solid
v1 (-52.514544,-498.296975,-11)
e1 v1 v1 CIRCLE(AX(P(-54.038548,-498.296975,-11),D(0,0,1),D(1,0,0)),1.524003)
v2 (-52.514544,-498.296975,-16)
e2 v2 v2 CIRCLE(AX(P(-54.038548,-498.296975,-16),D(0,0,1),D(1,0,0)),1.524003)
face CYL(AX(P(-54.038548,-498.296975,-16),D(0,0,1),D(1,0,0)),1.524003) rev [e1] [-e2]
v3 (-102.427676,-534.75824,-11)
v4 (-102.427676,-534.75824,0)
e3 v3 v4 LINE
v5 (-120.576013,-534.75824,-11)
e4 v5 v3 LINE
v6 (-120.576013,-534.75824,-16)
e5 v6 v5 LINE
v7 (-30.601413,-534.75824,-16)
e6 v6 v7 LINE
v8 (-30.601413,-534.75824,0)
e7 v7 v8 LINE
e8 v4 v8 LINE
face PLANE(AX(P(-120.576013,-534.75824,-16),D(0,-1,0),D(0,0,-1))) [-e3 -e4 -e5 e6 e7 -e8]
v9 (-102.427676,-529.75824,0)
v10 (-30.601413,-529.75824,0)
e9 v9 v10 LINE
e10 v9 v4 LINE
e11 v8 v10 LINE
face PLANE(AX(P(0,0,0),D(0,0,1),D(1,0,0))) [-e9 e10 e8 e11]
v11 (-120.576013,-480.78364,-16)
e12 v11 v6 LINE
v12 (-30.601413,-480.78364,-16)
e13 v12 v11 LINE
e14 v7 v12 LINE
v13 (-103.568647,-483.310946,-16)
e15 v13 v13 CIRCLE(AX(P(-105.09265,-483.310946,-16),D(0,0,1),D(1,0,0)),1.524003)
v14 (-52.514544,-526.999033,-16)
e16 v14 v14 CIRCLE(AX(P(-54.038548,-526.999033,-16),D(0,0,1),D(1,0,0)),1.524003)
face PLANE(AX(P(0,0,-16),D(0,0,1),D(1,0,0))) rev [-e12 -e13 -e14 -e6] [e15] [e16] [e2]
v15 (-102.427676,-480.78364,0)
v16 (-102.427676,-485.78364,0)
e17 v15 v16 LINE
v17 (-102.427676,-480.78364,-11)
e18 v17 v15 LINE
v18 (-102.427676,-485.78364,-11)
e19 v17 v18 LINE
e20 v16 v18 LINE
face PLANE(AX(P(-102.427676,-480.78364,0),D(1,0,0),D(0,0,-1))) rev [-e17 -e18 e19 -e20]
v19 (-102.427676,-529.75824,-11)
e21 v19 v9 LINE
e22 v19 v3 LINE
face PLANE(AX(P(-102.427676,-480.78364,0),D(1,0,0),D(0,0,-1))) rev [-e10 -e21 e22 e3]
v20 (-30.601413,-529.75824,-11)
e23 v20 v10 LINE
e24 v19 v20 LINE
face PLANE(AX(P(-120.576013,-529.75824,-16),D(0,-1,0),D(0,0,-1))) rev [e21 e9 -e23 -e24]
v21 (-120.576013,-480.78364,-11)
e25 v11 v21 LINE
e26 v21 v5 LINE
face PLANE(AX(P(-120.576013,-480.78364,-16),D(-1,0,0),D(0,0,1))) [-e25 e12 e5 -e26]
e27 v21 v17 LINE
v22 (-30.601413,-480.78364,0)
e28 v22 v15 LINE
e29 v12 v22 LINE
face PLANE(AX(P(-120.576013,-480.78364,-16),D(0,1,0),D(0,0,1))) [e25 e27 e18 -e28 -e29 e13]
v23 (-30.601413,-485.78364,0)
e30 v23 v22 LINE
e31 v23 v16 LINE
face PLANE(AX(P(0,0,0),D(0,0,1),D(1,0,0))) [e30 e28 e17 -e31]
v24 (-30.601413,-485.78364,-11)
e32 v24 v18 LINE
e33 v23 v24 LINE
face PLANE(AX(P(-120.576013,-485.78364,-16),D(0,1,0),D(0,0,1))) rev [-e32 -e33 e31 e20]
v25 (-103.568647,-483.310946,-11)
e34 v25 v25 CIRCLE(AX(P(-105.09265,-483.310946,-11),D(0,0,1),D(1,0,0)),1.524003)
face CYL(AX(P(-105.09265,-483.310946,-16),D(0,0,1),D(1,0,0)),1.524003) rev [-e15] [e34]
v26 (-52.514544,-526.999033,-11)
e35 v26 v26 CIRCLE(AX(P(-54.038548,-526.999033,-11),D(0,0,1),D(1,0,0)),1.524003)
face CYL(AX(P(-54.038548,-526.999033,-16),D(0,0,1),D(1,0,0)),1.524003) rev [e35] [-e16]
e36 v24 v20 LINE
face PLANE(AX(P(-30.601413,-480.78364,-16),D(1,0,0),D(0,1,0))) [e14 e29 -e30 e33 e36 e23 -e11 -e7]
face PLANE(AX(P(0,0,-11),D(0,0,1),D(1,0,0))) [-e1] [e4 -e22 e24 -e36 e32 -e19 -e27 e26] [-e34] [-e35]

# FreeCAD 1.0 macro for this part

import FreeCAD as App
import Part
import Sketcher
from FreeCAD import Vector
Q = App.Units.Quantity


def faces_at(feature, points):
    """Names of the faces that lie closest to the given points."""
    faces = feature.Shape.Faces
    near = lambda p: min(range(len(faces)), key=lambda i: faces[i].distToShape(Part.Vertex(*p))[0])
    return sorted({f"Face{near(p) + 1}" for p in points})

doc = App.newDocument("Part")
params = doc.addObject("Spreadsheet::Sheet", "Params")
for row, (alias, value) in enumerate([
    ("pad1_length", "16 mm"),
    ("thickness_wall", "5 mm"),
    ("sketch2_height", "11 mm"),
    ("sketch3_height", "11 mm"),
], start=1):
    params.set(f"A{row}", alias)
    params.set(f"B{row}", "=" + value)
    params.setAlias(f"B{row}", alias)

body = doc.addObject("PartDesign::Body", "Body")

# Sketch on XY plane
sketch1 = doc.addObject("Sketcher::SketchObject", "Sketch")
body.addObject(sketch1)
sketch1.AttachmentSupport = (doc.XY_Plane, [""])
sketch1.MapMode = "FlatFace"
sketch1.addGeometry([
    Part.LineSegment(Vector(-121, -481, 0), Vector(-121, -535, 0)),
    Part.LineSegment(Vector(-121, -535, 0), Vector(-31, -535, 0)),
    Part.LineSegment(Vector(-31, -535, 0), Vector(-31, -481, 0)),
    Part.LineSegment(Vector(-31, -481, 0), Vector(-121, -481, 0)),
], False)
sketch1.addConstraint([
    Sketcher.Constraint("Coincident", 0, 2, 1, 1),
    Sketcher.Constraint("Coincident", 1, 2, 2, 1),
    Sketcher.Constraint("Coincident", 2, 2, 3, 1),
    Sketcher.Constraint("Coincident", 3, 2, 0, 1),
    Sketcher.Constraint("Vertical", 0),
    Sketcher.Constraint("Horizontal", 1),
    Sketcher.Constraint("Vertical", 2),
    Sketcher.Constraint("Horizontal", 3),
    Sketcher.Constraint("DistanceX", 1, 1, 1, 2, Q("89.9746 mm")),
    Sketcher.Constraint("DistanceY", 0, 2, 0, 1, Q("53.9746 mm")),
    Sketcher.Constraint("DistanceY", 0, 2, -1, 1, Q("534.75824 mm")),
    Sketcher.Constraint("DistanceX", 0, 2, -1, 1, Q("120.576013 mm")),
])
pad1 = doc.addObject("PartDesign::Pad", "Pad")
body.addObject(pad1)
pad1.Profile = sketch1
pad1.setExpression("Length", "Params.pad1_length")
pad1.Reversed = True
doc.recompute()

thickness = doc.addObject("PartDesign::Thickness", "Thickness")
body.addObject(thickness)
thickness.Base = (pad1, faces_at(pad1, [(-75.589, -507.771, 0)]))
thickness.setExpression("Value", "Params.thickness_wall")
thickness.Reversed = True
thickness.Join = "Intersection"

# Sketch on YZ plane
sketch2 = doc.addObject("Sketcher::SketchObject", "Sketch001")
body.addObject(sketch2)
sketch2.AttachmentSupport = (doc.YZ_Plane, [""])
sketch2.MapMode = "FlatFace"
sketch2.AttachmentOffset = App.Placement(Vector(0, 0, -120.576013), App.Rotation())
sketch2.addGeometry([
    Part.LineSegment(Vector(-486, -11, 0), Vector(-530, -11, 0)),
    Part.LineSegment(Vector(-530, -11, 0), Vector(-530, 0, 0)),
    Part.LineSegment(Vector(-530, 0, 0), Vector(-486, 0, 0)),
    Part.LineSegment(Vector(-486, 0, 0), Vector(-486, -11, 0)),
], False)
sketch2.addConstraint([
    Sketcher.Constraint("Coincident", 0, 2, 1, 1),
    Sketcher.Constraint("Coincident", 1, 2, 2, 1),
    Sketcher.Constraint("Coincident", 2, 2, 3, 1),
    Sketcher.Constraint("Coincident", 3, 2, 0, 1),
    Sketcher.Constraint("Horizontal", 0),
    Sketcher.Constraint("Vertical", 1),
    Sketcher.Constraint("Horizontal", 2),
    Sketcher.Constraint("Vertical", 3),
    Sketcher.Constraint("PointOnObject", 1, 2, -1),
    Sketcher.Constraint("DistanceY", 1, 1, 1, 2, Q("11 mm")),
    Sketcher.Constraint("DistanceX", 0, 2, 0, 1, Q("43.9746 mm")),
    Sketcher.Constraint("DistanceX", 0, 2, -1, 1, Q("529.75824 mm")),
])
sketch2.setExpression("Constraints[9]", "Params.sketch2_height")
pocket1 = doc.addObject("PartDesign::Pocket", "Pocket")
body.addObject(pocket1)
pocket1.Profile = sketch2
pocket1.Type = "ThroughAll"
pocket1.Reversed = True

# Sketch on XZ plane
sketch3 = doc.addObject("Sketcher::SketchObject", "Sketch002")
body.addObject(sketch3)
sketch3.AttachmentSupport = (doc.XZ_Plane, [""])
sketch3.MapMode = "FlatFace"
sketch3.AttachmentOffset = App.Placement(Vector(0, 0, 534.75824), App.Rotation())
sketch3.addGeometry([
    Part.LineSegment(Vector(-121, 0, 0), Vector(-121, -11, 0)),
    Part.LineSegment(Vector(-121, -11, 0), Vector(-102, -11, 0)),
    Part.LineSegment(Vector(-102, -11, 0), Vector(-102, 0, 0)),
    Part.LineSegment(Vector(-102, 0, 0), Vector(-121, 0, 0)),
], False)
sketch3.addConstraint([
    Sketcher.Constraint("Coincident", 0, 2, 1, 1),
    Sketcher.Constraint("Coincident", 1, 2, 2, 1),
    Sketcher.Constraint("Coincident", 2, 2, 3, 1),
    Sketcher.Constraint("Coincident", 3, 2, 0, 1),
    Sketcher.Constraint("Vertical", 0),
    Sketcher.Constraint("Horizontal", 1),
    Sketcher.Constraint("Vertical", 2),
    Sketcher.Constraint("Horizontal", 3),
    Sketcher.Constraint("PointOnObject", 2, 2, -1),
    Sketcher.Constraint("DistanceY", 0, 2, 0, 1, Q("11 mm")),
    Sketcher.Constraint("DistanceX", 1, 1, 1, 2, Q("18.148336 mm")),
    Sketcher.Constraint("DistanceX", 0, 2, -1, 1, Q("120.576013 mm")),
])
sketch3.setExpression("Constraints[9]", "Params.sketch3_height")
pocket2 = doc.addObject("PartDesign::Pocket", "Pocket001")
body.addObject(pocket2)
pocket2.Profile = sketch3
pocket2.Type = "ThroughAll"

# Sketch on XY plane
sketch4 = doc.addObject("Sketcher::SketchObject", "Sketch003")
body.addObject(sketch4)
sketch4.AttachmentSupport = (doc.XY_Plane, [""])
sketch4.MapMode = "FlatFace"
sketch4.addGeometry([
    Part.Circle(Vector(-105.1, -483.3, 0), Vector(0, 0, 1), 1.5),
    Part.Circle(Vector(-54, -527, 0), Vector(0, 0, 1), 1.5),
    Part.Circle(Vector(-54, -498.3, 0), Vector(0, 0, 1), 1.5),
], False)
sketch4.addConstraint([
    Sketcher.Constraint("Equal", 0, 1),
    Sketcher.Constraint("Equal", 1, 2),
    Sketcher.Constraint("Vertical", 1, 3, 2, 3),
    Sketcher.Constraint("Diameter", 0, Q("3.048006 mm")),
    Sketcher.Constraint("DistanceX", 0, 3, -1, 1, Q("105.09265 mm")),
    Sketcher.Constraint("DistanceY", 2, 3, 0, 3, Q("14.98603 mm")),
    Sketcher.Constraint("DistanceY", 0, 3, -1, 1, Q("483.310946 mm")),
    Sketcher.Constraint("DistanceX", 1, 3, -1, 1, Q("54.038548 mm")),
    Sketcher.Constraint("DistanceY", 1, 3, -1, 1, Q("526.999033 mm")),
])
pocket3 = doc.addObject("PartDesign::Pocket", "Pocket002")
body.addObject(pocket3)
pocket3.Profile = sketch4
pocket3.Type = "ThroughAll"

doc.recompute()
